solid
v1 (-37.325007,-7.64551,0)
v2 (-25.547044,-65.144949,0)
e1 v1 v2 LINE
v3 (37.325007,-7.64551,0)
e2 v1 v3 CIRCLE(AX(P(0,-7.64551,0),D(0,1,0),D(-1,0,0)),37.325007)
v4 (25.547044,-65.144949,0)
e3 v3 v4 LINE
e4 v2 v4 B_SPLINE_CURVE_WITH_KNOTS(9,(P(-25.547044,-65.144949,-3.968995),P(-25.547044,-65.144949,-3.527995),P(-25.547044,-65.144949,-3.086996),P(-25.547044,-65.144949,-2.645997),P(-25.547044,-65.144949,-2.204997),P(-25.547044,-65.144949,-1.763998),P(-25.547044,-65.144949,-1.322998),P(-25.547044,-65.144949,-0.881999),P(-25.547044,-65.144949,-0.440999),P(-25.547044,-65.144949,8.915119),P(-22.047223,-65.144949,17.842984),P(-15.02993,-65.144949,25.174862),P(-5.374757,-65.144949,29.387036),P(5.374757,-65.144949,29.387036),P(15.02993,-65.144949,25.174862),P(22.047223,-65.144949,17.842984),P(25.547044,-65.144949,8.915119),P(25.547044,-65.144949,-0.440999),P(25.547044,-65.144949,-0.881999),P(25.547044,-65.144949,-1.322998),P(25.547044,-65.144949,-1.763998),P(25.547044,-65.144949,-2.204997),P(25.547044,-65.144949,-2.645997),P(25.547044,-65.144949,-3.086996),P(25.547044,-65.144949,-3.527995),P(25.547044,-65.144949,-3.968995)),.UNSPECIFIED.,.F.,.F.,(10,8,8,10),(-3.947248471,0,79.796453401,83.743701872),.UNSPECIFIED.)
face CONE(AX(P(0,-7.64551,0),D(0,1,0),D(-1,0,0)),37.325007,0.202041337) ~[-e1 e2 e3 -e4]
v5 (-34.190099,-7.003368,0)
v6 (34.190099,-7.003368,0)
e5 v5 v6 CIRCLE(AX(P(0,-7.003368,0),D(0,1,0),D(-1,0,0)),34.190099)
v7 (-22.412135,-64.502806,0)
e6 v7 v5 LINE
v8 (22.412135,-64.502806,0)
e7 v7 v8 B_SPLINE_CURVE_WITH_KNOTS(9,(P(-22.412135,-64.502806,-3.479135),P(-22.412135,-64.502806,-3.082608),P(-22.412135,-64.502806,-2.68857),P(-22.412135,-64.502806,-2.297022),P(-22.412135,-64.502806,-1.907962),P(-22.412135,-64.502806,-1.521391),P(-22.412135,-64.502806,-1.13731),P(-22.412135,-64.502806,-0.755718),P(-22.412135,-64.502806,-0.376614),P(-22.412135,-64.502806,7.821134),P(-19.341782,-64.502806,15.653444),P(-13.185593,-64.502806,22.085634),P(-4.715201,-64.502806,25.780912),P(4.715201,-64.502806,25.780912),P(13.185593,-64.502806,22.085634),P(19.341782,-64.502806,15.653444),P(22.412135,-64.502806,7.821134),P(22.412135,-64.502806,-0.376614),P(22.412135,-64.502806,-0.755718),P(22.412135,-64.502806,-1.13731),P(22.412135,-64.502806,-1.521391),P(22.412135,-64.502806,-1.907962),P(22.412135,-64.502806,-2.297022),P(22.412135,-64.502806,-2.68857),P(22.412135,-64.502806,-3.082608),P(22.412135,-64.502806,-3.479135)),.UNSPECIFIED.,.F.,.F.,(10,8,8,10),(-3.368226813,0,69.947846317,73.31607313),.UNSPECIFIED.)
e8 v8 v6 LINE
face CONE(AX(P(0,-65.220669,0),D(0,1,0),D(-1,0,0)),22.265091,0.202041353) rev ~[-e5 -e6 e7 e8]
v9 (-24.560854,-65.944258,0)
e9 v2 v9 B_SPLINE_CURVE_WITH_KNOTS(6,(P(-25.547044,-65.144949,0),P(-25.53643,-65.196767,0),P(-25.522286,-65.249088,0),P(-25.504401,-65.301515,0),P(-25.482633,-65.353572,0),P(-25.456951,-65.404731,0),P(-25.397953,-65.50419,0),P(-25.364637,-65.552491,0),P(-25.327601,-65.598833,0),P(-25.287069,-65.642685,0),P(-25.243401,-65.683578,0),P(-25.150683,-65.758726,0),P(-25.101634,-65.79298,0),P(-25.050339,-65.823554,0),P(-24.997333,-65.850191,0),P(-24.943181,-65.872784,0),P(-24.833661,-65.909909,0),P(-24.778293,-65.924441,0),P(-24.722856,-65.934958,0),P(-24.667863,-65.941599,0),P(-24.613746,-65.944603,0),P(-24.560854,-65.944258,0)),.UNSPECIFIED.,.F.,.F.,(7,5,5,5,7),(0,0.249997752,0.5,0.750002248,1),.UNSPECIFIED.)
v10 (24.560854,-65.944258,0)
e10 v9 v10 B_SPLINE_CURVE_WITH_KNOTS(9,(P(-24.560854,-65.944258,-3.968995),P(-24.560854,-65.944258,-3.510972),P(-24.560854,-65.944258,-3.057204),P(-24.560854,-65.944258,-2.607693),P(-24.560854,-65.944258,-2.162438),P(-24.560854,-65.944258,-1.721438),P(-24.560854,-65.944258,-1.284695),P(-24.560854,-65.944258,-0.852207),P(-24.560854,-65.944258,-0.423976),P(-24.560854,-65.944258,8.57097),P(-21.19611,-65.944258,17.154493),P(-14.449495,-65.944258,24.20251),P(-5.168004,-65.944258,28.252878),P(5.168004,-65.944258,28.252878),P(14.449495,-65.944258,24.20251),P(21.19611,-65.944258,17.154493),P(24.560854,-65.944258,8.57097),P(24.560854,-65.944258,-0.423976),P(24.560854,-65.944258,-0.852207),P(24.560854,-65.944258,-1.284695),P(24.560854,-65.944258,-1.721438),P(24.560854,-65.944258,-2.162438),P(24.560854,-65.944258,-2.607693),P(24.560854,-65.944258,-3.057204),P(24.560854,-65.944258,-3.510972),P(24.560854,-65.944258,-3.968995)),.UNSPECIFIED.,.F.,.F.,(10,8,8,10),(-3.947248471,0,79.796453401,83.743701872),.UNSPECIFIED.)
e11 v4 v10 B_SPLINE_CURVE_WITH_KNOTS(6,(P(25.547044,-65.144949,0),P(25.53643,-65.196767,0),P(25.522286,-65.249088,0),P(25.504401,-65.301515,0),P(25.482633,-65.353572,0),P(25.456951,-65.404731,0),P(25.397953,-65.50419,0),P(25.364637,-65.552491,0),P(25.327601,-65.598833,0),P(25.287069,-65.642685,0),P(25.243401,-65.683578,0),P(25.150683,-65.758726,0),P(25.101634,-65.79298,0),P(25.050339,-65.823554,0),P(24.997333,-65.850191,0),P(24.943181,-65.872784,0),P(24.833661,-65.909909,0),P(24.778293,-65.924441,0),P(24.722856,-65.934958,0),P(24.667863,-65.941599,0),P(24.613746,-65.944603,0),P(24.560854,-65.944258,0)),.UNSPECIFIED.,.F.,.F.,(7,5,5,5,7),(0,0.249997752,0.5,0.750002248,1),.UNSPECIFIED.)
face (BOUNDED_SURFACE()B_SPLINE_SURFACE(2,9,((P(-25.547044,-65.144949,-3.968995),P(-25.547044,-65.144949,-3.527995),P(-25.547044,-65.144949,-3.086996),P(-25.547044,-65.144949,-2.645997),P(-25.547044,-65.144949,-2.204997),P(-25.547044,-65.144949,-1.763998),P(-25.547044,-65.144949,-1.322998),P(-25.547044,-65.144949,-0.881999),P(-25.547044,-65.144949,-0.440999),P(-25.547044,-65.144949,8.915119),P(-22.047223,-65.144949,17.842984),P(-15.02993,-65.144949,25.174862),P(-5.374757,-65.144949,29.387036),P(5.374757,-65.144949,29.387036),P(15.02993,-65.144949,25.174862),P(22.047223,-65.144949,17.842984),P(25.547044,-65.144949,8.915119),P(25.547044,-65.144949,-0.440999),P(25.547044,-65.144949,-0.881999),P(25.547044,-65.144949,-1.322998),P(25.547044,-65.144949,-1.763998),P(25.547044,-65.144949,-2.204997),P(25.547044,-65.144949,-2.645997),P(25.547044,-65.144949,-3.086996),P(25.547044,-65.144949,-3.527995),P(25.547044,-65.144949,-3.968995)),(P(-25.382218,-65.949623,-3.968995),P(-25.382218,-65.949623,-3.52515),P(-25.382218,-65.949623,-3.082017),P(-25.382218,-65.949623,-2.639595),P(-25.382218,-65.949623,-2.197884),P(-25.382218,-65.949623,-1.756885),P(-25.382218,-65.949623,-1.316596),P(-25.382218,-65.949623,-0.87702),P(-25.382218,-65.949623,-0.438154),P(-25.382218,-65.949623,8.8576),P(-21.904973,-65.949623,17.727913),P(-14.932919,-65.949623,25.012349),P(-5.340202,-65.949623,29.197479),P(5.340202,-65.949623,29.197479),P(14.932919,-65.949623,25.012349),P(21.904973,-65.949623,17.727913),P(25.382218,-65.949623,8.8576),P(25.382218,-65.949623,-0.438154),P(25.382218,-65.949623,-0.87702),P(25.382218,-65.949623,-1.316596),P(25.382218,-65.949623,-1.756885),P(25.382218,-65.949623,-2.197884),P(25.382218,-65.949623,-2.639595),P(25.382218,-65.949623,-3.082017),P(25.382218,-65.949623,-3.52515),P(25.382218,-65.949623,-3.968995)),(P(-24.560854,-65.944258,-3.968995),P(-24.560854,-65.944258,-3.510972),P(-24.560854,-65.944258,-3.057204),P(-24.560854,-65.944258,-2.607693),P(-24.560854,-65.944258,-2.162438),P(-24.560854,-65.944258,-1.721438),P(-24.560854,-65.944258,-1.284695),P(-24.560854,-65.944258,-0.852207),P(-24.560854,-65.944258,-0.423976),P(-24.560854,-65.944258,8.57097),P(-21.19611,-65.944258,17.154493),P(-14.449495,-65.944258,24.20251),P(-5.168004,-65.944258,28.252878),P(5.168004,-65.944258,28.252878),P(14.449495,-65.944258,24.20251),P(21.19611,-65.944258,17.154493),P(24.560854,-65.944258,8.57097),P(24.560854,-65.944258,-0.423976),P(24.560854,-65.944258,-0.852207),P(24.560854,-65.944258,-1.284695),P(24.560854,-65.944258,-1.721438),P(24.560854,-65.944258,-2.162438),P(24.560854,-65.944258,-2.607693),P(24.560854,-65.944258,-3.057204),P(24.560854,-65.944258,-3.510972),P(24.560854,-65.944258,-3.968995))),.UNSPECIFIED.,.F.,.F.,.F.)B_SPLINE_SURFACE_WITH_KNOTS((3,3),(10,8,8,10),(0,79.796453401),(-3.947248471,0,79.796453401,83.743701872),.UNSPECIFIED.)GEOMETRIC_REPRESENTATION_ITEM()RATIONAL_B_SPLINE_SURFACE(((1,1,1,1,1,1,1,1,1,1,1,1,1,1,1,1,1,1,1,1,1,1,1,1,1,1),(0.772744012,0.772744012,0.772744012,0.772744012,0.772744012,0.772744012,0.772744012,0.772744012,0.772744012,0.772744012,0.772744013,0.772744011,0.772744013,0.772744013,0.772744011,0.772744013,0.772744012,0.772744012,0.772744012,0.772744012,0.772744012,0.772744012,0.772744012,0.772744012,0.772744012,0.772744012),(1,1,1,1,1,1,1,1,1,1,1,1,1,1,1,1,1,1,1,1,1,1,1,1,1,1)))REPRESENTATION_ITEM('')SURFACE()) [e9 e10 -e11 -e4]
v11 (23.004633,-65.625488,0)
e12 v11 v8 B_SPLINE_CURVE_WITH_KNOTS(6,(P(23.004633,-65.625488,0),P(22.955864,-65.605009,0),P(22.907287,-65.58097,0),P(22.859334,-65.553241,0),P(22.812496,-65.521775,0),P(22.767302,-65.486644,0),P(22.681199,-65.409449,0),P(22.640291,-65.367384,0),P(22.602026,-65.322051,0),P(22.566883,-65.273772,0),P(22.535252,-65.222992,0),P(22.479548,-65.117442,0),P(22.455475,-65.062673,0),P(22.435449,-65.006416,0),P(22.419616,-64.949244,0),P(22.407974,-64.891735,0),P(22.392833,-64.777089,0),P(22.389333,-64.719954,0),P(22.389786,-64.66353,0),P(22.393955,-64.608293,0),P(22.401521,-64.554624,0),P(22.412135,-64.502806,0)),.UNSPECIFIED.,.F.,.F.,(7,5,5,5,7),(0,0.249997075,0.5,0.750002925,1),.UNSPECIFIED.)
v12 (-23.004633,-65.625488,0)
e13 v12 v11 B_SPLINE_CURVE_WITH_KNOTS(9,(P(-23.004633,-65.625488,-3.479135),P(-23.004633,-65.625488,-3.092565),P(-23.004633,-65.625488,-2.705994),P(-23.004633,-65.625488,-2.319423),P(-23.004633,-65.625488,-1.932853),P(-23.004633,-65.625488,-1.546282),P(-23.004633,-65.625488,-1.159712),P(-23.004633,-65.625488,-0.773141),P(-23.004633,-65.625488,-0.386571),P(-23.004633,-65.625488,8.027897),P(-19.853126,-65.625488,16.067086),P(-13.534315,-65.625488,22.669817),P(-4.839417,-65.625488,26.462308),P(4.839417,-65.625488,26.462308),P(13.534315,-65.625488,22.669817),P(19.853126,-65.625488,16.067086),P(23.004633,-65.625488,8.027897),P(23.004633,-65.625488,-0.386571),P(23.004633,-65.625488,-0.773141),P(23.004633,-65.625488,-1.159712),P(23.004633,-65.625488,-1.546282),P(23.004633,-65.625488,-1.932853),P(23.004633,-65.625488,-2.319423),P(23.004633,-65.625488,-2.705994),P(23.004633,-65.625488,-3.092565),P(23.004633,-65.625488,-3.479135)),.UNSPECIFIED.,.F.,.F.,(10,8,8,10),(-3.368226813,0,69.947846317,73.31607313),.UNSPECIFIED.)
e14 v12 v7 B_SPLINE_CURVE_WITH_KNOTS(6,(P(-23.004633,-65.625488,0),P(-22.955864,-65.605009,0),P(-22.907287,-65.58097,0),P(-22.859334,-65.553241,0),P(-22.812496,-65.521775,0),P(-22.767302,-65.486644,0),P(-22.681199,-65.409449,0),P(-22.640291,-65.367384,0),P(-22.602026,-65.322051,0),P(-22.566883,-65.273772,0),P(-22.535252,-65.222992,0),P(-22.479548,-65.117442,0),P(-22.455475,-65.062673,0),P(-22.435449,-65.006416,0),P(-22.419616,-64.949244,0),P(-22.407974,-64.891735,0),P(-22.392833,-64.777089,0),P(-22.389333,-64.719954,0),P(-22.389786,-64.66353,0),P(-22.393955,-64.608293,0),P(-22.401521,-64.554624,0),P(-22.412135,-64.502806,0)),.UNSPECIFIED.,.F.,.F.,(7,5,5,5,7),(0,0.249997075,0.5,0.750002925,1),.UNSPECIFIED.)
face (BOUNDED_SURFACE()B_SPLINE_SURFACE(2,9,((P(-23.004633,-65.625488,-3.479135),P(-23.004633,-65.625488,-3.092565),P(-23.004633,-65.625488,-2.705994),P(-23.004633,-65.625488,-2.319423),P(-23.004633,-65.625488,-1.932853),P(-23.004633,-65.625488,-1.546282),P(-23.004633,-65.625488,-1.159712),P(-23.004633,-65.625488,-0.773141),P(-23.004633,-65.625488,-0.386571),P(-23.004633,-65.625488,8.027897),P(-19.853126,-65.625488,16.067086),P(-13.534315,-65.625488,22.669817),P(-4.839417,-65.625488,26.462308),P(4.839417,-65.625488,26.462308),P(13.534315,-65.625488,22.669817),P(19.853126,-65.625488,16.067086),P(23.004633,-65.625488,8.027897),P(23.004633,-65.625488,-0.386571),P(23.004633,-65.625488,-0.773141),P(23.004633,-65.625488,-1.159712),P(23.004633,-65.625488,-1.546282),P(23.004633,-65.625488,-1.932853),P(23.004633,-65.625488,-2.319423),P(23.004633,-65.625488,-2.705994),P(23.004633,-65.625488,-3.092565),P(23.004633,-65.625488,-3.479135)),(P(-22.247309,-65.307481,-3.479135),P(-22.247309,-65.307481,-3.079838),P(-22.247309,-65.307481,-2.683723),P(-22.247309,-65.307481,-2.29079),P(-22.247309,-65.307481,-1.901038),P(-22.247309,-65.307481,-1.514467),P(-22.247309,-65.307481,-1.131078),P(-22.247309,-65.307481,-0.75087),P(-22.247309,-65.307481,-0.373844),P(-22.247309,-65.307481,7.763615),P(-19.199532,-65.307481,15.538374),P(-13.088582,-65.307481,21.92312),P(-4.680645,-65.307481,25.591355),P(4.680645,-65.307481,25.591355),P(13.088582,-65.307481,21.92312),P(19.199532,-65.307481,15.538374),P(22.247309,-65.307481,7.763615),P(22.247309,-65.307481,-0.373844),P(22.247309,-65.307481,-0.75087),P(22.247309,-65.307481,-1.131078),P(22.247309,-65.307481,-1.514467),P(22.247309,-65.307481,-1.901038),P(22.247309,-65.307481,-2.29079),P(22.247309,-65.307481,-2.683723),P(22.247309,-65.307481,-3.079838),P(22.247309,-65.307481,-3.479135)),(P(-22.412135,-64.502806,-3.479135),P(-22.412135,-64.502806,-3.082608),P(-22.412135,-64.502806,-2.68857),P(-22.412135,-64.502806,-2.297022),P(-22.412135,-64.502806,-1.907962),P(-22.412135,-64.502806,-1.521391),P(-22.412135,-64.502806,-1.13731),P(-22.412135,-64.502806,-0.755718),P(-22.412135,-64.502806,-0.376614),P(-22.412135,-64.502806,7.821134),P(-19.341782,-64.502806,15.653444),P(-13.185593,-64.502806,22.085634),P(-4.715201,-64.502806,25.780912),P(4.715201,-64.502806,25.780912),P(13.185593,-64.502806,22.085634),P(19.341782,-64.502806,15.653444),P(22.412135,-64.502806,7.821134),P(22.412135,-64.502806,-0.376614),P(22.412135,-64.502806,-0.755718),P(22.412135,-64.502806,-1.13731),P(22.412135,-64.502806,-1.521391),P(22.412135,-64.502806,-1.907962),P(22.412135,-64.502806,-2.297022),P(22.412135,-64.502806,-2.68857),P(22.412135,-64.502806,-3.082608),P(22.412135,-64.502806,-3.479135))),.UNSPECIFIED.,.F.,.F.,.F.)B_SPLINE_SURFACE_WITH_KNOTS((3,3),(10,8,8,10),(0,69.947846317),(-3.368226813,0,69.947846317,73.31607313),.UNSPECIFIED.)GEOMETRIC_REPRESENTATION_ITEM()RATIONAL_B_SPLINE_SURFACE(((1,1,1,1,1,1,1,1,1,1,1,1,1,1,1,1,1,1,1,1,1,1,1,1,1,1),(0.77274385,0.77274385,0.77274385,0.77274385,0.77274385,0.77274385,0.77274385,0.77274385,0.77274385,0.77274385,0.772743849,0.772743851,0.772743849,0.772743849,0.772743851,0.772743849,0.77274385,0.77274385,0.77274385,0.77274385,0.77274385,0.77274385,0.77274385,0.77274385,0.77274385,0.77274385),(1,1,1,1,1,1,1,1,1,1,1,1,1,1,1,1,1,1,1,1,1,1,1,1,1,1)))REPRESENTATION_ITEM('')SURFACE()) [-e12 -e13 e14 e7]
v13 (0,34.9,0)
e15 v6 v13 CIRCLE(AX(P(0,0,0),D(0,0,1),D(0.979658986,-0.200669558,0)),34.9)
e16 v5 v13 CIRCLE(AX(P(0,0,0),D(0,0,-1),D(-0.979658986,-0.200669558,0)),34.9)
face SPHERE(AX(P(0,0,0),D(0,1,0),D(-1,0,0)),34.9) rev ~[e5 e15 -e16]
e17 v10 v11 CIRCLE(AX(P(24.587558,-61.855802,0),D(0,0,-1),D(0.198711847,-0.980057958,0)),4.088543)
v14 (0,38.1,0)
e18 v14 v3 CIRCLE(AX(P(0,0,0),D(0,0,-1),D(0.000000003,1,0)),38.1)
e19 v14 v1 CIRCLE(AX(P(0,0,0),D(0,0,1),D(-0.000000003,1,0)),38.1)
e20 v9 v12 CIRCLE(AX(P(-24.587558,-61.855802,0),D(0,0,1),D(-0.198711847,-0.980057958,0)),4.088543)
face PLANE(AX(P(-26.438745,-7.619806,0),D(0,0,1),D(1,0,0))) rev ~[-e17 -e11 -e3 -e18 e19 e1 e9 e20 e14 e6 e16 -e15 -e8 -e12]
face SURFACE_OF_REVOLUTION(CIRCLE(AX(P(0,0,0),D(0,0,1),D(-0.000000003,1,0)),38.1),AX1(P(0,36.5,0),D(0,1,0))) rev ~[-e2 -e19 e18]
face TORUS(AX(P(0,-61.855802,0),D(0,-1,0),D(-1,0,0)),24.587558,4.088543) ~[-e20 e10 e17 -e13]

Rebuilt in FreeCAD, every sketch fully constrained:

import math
import FreeCAD as App
import Part
import Sketcher

V = App.Vector


def edges_at(feature, points):
    """Names of the edges that pass closest to the given points."""
    edges = feature.Shape.Edges
    near = lambda p: min(range(len(edges)), key=lambda i: edges[i].distToShape(Part.Vertex(*p))[0])
    return sorted({f"Edge{near(p) + 1}" for p in points})

doc = App.newDocument("Part")
body = doc.addObject("PartDesign::Body", "Body")

sketch1 = body.newObject("Sketcher::SketchObject", "Sketch")
sketch1.AttachmentSupport = (doc.getObject("XY_Plane"), [""])
sketch1.MapMode = "FlatFace"
sketch1.addGeometry([
    Part.LineSegment(V(0, 34.9, 0), V(0, 38.1, 0)),
    Part.ArcOfCircle(Part.Circle(V(0, 0, 0), V(0, 0, 1), 38.1), math.radians(90), math.radians(192)),
    Part.LineSegment(V(-37.3, -7.6, 0), V(-25.4, -65.9, 0)),
    Part.ArcOfCircle(Part.Circle(V(-24.6, -61.9, 0), V(0, 0, 1), 4.1), math.radians(-101), math.radians(-55)),
    Part.LineSegment(V(-22.3, -65.2, 0), V(-34.2, -7, 0)),
    Part.ArcOfCircle(Part.Circle(V(0, 0, 0), V(0, 0, 1), 34.9), math.radians(90), math.radians(192)),
], False)
sketch1.addConstraint([
    Sketcher.Constraint("Coincident", 0, 2, 1, 1),
    Sketcher.Constraint("Tangent", 1, 2, 2, 1),
    Sketcher.Constraint("Coincident", 2, 2, 3, 1),
    Sketcher.Constraint("Coincident", 3, 2, 4, 1),
    Sketcher.Constraint("Tangent", 4, 2, 5, 2),
    Sketcher.Constraint("Coincident", 5, 1, 0, 1),
    Sketcher.Constraint("Vertical", 0),
    Sketcher.Constraint("Coincident", 1, 3, -1, 1),
    Sketcher.Constraint("Coincident", 5, 3, -1, 1),
    Sketcher.Constraint("PointOnObject", 0, 2, -2),
    Sketcher.Constraint("Parallel", 2, 4),
    Sketcher.Constraint("Equal", 2, 4),
    Sketcher.Constraint("Radius", 1, 38.1),
    Sketcher.Constraint("Radius", 5, 34.9),
    Sketcher.Constraint("DistanceX", 2, 2, -1, 1, 25.4),
    Sketcher.Constraint("Radius", 3, 4.088543),
    Sketcher.Constraint("DistanceY", 3, 3, -1, 1, 61.855802),
])
revolution = body.newObject("PartDesign::Revolution", "Revolution")
revolution.Profile = sketch1
revolution.ReferenceAxis = (sketch1, ["V_Axis"])
revolution.Angle = 180
doc.recompute()

fillet = body.newObject("PartDesign::Fillet", "Fillet")
fillet.Base = (revolution, edges_at(revolution, [(0, -65.221, 22.265), (0, -65.863, 25.4)]))
fillet.Radius = 1

doc.recompute()
